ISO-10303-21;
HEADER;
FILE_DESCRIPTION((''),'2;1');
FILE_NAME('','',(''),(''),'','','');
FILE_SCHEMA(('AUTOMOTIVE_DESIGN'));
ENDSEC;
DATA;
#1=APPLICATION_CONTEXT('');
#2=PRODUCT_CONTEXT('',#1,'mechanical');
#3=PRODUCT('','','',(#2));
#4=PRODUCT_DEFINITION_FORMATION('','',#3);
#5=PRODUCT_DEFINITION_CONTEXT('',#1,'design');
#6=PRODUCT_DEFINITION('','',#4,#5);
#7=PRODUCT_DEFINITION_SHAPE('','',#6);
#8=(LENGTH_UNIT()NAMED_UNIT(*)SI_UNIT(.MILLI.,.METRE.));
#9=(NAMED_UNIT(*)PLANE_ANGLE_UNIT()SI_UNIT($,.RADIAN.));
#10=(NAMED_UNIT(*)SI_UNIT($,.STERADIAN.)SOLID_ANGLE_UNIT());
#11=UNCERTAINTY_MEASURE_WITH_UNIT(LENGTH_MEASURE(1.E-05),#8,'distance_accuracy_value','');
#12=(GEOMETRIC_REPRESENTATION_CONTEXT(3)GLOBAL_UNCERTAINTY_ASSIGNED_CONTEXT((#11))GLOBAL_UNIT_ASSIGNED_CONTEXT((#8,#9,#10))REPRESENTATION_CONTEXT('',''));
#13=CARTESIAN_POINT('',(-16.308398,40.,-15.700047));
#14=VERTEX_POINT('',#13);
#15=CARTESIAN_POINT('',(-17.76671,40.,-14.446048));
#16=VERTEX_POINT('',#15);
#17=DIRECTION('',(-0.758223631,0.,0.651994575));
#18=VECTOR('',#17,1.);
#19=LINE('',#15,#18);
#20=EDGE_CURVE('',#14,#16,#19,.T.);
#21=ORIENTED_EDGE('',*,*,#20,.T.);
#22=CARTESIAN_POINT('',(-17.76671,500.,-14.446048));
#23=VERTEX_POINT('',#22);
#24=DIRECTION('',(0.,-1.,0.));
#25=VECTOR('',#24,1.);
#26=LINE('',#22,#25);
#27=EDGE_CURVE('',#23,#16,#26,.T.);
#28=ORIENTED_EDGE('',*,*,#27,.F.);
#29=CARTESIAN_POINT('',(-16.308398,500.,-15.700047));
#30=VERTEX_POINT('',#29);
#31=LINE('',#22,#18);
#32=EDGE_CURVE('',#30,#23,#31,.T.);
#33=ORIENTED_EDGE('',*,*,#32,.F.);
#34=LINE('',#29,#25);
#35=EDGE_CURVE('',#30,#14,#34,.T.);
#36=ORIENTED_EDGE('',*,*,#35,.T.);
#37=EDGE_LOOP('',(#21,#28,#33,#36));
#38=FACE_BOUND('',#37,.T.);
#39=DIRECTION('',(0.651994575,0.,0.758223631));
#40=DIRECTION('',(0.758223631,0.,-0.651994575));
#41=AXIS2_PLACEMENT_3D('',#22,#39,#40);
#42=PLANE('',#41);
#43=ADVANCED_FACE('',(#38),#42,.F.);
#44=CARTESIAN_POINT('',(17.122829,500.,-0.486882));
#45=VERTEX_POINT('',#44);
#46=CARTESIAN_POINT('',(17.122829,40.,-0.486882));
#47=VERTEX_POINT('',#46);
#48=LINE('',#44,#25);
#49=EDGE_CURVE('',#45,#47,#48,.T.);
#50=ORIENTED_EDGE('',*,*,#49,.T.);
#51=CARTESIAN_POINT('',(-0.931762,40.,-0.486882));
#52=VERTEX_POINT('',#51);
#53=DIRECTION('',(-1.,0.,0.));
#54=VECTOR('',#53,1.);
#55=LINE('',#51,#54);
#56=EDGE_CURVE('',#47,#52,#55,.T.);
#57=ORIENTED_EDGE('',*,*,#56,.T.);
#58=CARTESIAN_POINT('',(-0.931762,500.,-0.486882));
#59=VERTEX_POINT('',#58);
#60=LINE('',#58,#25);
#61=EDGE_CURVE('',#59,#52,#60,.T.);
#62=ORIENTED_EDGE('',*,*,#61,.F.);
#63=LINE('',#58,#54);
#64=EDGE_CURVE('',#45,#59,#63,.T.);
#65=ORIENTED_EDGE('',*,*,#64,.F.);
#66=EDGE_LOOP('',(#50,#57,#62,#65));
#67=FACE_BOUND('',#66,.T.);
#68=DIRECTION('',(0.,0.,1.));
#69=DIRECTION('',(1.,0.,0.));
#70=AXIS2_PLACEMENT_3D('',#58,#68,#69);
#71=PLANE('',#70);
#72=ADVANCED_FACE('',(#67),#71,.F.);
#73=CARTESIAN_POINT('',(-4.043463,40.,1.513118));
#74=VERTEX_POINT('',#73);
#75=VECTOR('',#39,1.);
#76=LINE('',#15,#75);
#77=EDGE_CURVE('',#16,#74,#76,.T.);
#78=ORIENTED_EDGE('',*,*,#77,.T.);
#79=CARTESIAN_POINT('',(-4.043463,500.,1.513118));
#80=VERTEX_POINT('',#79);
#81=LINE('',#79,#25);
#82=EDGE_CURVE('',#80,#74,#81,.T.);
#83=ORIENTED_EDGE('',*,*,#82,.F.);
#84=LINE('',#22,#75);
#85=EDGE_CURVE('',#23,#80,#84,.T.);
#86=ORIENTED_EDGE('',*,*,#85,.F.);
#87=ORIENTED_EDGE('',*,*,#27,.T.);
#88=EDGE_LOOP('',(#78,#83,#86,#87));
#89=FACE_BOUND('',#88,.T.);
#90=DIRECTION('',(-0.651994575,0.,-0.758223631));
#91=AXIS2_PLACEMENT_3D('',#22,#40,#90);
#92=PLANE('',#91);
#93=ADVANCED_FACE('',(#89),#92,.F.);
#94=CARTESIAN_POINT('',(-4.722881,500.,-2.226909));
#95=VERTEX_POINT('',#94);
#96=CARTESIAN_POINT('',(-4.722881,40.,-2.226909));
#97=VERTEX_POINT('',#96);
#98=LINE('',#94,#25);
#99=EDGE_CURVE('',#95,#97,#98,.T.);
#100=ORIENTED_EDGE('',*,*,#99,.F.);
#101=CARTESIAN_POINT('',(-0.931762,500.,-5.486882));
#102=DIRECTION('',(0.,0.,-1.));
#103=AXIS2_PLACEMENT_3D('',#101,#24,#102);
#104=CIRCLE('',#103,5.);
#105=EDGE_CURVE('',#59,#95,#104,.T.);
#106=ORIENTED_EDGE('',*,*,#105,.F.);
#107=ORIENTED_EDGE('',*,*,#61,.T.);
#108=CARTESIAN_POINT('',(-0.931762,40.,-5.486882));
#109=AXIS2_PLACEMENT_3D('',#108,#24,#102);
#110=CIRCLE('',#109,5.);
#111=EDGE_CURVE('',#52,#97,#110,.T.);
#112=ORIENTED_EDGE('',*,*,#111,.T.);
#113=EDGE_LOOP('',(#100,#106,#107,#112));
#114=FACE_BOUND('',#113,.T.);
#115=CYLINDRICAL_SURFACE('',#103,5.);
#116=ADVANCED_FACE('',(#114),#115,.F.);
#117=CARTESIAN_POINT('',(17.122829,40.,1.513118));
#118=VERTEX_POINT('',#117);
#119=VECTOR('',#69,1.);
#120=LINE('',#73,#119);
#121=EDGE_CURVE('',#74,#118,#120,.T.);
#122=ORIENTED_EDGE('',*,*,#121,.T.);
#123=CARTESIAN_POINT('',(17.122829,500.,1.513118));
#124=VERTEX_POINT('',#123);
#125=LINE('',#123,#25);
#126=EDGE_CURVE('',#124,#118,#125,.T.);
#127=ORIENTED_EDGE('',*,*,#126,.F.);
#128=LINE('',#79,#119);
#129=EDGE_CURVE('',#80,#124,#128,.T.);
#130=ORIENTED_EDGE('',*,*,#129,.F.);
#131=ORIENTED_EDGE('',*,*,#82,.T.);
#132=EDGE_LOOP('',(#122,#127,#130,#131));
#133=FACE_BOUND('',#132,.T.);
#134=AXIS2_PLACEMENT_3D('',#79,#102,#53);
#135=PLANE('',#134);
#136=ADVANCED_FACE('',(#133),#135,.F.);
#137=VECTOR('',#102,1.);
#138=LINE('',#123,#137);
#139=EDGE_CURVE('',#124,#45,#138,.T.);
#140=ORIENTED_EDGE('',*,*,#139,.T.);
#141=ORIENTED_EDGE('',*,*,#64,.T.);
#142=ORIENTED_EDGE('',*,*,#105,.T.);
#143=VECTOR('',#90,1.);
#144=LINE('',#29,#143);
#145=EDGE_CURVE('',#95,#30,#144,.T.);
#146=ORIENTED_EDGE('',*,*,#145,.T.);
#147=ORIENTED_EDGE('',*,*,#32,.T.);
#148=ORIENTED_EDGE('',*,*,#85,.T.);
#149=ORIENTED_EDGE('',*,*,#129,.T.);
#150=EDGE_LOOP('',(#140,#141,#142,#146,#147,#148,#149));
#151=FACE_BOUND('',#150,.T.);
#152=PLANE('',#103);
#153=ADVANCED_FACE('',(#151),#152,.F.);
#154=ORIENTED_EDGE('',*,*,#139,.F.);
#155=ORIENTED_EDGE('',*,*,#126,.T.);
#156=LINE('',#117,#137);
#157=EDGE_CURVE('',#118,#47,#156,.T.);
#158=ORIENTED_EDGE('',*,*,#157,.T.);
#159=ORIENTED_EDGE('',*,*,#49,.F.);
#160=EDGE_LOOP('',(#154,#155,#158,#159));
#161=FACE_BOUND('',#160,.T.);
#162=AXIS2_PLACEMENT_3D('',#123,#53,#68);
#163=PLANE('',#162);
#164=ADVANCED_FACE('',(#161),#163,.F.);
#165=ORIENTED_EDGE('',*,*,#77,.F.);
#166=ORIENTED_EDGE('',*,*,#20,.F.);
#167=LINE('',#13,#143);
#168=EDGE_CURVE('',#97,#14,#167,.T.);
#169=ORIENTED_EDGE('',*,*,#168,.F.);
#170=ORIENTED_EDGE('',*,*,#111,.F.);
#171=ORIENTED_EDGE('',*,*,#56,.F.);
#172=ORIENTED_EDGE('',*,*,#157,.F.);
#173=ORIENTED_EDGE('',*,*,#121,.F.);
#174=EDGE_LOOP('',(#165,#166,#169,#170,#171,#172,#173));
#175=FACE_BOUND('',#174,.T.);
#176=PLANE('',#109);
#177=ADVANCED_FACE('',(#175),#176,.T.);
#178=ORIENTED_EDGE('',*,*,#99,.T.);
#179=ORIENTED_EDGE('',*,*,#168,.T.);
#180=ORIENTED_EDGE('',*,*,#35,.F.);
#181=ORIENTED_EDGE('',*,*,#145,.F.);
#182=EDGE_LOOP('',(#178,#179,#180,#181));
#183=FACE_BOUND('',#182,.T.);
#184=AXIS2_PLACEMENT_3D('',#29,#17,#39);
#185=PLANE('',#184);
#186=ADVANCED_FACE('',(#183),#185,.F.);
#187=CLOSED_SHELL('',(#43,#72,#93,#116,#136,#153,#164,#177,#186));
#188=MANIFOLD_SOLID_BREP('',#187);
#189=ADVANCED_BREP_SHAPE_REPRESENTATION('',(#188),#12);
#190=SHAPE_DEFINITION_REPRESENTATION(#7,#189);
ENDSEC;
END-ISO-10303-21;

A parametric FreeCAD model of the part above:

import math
import FreeCAD as App
import Part
import Sketcher

V = App.Vector
Q = App.Units.Quantity

doc = App.newDocument("Part")
body = doc.addObject("PartDesign::Body", "Body")

# Sketch on XZ plane
sketch1 = body.newObject("Sketcher::SketchObject", "Sketch")
sketch1.AttachmentSupport = (doc.getObject("XZ_Plane"), [""])
sketch1.MapMode = "FlatFace"
sketch1.AttachmentOffset = App.Placement(V(0, 0, -40), App.Rotation())
sketch1.addGeometry([
    Part.LineSegment(V(-16.3, -15.7, 0), V(-17.8, -14.4, 0)),  # 0
    Part.LineSegment(V(-17.8, -14.4, 0), V(-4, 1.5, 0)),  # 1
    Part.LineSegment(V(-4, 1.5, 0), V(17.1, 1.5, 0)),  # 2
    Part.LineSegment(V(17.1, 1.5, 0), V(17.1, -0.5, 0)),  # 3
    Part.LineSegment(V(17.1, -0.5, 0), V(-0.9, -0.5, 0)),  # 4
    Part.ArcOfCircle(Part.Circle(V(-0.9, -5.5, 0), V(0, 0, 1), 5), math.radians(90), math.radians(139)),  # 5
    Part.LineSegment(V(-4.7, -2.2, 0), V(-16.3, -15.7, 0)),  # 6
], False)
sketch1.addConstraint([
    Sketcher.Constraint("Coincident", 0, 2, 1, 1),
    Sketcher.Constraint("Coincident", 1, 2, 2, 1),
    Sketcher.Constraint("Coincident", 2, 2, 3, 1),
    Sketcher.Constraint("Coincident", 3, 2, 4, 1),
    Sketcher.Constraint("Tangent", 4, 2, 5, 1),
    Sketcher.Constraint("Tangent", 5, 2, 6, 1),
    Sketcher.Constraint("Coincident", 6, 2, 0, 1),
    Sketcher.Constraint("Horizontal", 2),
    Sketcher.Constraint("Vertical", 3),
    Sketcher.Constraint("Horizontal", 4),
    Sketcher.Constraint("Perpendicular", 0, 1),
    Sketcher.Constraint("Parallel", 1, 6),
    Sketcher.Constraint("Radius", 5, Q("5 mm")),
    Sketcher.Constraint("DistanceY", 3, 2, 3, 1, Q("2 mm")),
    Sketcher.Constraint("DistanceY", 6, 2, 0, 2, Q("1.253999 mm")),
    Sketcher.Constraint("Distance", 1, Q("21.048099 mm")),
    Sketcher.Constraint("DistanceX", 4, 2, 4, 1, Q("18.054592 mm")),
    Sketcher.Constraint("DistanceX", 1, 2, 5, 3, Q("3.111701 mm")),
    Sketcher.Constraint("DistanceY", 5, 3, -1, 1, Q("5.486882 mm")),
    Sketcher.Constraint("DistanceX", 0, 2, -1, 1, Q("17.76671 mm")),
])
pad1 = body.newObject("PartDesign::Pad", "Pad")
pad1.Profile = sketch1
pad1.Length = 460
pad1.Reversed = True

doc.recompute()
